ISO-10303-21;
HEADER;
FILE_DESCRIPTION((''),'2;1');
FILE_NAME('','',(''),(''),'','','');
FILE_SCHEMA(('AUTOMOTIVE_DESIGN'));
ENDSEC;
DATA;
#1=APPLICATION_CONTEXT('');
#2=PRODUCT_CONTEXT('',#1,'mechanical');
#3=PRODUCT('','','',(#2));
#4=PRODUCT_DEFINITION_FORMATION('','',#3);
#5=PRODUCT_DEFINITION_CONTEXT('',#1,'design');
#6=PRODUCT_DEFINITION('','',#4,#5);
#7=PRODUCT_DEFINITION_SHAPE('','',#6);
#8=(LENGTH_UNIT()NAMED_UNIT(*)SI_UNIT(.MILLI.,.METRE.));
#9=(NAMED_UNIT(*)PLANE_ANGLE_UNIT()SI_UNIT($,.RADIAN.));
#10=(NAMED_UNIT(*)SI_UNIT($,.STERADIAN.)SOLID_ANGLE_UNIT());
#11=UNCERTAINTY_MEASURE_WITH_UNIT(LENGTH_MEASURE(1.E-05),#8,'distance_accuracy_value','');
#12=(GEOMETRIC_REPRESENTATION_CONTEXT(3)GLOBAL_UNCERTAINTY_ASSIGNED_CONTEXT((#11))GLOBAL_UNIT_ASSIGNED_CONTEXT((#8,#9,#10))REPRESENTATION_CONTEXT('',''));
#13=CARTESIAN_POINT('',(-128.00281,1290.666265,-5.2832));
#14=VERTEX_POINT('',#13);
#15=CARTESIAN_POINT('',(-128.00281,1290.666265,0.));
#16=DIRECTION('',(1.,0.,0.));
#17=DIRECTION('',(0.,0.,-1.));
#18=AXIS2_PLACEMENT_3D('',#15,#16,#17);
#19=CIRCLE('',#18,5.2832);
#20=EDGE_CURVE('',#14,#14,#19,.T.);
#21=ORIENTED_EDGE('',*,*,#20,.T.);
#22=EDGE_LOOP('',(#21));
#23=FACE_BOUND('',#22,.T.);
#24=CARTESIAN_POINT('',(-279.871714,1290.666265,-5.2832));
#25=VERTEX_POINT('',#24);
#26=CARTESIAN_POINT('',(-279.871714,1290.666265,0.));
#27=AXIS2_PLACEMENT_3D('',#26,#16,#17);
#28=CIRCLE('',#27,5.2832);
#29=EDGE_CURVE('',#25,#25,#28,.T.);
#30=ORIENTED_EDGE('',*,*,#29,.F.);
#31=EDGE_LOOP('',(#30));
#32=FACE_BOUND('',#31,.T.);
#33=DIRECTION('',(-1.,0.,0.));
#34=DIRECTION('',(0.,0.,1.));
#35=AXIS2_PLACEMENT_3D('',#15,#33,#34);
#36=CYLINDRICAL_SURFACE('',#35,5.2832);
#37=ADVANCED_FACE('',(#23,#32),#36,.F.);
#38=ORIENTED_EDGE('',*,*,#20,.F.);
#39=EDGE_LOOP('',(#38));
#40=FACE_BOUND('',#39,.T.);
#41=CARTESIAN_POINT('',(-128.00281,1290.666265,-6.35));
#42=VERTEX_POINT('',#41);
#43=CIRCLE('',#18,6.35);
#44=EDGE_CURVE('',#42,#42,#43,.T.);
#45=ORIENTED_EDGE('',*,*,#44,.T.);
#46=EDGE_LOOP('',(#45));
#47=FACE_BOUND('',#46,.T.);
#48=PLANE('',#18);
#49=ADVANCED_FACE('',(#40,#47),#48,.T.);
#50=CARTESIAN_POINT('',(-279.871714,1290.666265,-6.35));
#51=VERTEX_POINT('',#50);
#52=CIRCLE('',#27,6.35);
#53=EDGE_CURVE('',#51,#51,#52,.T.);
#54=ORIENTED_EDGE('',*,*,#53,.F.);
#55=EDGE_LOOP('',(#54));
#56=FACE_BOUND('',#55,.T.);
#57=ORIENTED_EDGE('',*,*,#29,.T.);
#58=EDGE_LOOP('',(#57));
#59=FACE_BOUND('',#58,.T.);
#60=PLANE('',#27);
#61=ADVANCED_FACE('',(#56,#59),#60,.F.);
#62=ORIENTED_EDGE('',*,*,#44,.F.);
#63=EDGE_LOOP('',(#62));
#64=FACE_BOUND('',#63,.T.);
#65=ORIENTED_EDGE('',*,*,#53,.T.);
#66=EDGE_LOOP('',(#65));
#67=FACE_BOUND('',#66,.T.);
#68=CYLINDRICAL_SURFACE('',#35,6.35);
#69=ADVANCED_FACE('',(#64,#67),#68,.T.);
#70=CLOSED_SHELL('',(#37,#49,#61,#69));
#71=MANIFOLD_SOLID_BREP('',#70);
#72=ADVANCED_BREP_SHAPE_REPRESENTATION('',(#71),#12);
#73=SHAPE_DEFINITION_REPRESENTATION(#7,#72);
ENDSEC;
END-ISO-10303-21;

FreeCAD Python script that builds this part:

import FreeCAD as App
import Part
import Sketcher
from FreeCAD import Vector
Q = App.Units.Quantity

doc = App.newDocument("Part")
body = doc.addObject("PartDesign::Body", "Body")

# Sketch on YZ plane
sketch1 = body.newObject("Sketcher::SketchObject", "Sketch")
sketch1.AttachmentSupport = (doc.getObject("YZ_Plane"), [""])
sketch1.MapMode = "FlatFace"
sketch1.AttachmentOffset = App.Placement(Vector(0, 0, -279.871714), App.Rotation())
sketch1.addGeometry([
    Part.Circle(Vector(1291, 0, 0), Vector(0, 0, 1), 6),
    Part.Circle(Vector(1291, 0, 0), Vector(0, 0, 1), 5),
], False)
sketch1.addConstraint([
    Sketcher.Constraint("Coincident", 1, 3, 0, 3),
    Sketcher.Constraint("PointOnObject", 0, 3, -1),
    Sketcher.Constraint("Diameter", 0, Q("0.5 in")),
    Sketcher.Constraint("Diameter", 1, Q("0.416 in")),
    Sketcher.Constraint("DistanceX", -1, 1, 0, 3, Q("1290.666265 mm")),
])
pad1 = body.newObject("PartDesign::Pad", "Pad")
pad1.Profile = sketch1
pad1.Length = 151.868904

doc.recompute()
